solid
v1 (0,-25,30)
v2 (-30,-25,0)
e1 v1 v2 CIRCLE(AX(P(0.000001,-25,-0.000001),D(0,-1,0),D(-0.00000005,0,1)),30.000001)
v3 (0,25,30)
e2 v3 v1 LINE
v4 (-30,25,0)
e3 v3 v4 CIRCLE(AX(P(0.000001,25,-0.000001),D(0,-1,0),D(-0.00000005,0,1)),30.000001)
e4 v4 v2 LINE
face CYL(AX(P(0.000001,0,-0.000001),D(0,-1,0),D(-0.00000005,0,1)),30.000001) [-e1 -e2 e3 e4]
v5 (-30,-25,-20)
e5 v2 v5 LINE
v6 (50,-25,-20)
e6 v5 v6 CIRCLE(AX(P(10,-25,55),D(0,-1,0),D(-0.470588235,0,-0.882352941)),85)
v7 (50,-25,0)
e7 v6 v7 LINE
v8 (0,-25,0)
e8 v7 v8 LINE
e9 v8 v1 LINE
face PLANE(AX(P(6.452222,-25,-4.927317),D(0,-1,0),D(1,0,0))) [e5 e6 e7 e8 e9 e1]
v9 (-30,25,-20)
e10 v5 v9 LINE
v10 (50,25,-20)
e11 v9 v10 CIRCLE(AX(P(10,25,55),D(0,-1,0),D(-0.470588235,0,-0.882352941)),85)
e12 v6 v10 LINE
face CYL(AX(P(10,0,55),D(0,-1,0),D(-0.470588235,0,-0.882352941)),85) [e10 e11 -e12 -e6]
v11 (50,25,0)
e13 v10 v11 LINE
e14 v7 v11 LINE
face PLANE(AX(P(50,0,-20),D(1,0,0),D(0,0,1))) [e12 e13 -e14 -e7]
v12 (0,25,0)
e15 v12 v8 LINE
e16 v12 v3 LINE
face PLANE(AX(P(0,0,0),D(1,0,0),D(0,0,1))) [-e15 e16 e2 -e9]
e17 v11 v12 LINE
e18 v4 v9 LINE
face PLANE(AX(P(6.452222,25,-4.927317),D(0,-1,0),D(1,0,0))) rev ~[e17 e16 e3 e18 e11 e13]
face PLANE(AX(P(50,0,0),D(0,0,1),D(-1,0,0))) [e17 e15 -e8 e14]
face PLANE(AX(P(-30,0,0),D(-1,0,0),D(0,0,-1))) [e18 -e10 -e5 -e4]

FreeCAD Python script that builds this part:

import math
import FreeCAD as App
import Part
import Sketcher

doc = App.newDocument("Part")
body = doc.addObject("PartDesign::Body", "Body")

# Sketch on XZ plane
sketch1 = body.newObject("Sketcher::SketchObject", "Sketch")
sketch1.AttachmentSupport = (doc.getObject("XZ_Plane"), [""])
sketch1.MapMode = "FlatFace"
sketch1.addGeometry(Part.LineSegment(App.Vector(50, 0, 0), App.Vector(0, 0, 0)), False)
sketch1.addGeometry(Part.LineSegment(App.Vector(0, 0, 0), App.Vector(0, 30, 0)), False)
sketch1.addGeometry(Part.ArcOfCircle(Part.Circle(App.Vector(0, 0, 0), App.Vector(0, 0, 1), 30), math.radians(90), math.radians(180)), False)
sketch1.addGeometry(Part.LineSegment(App.Vector(-30, 0, 0), App.Vector(-30, -20, 0)), False)
sketch1.addGeometry(Part.ArcOfCircle(Part.Circle(App.Vector(10, 55, 0), App.Vector(0, 0, 1), 85), math.radians(-118), math.radians(-62)), False)
sketch1.addGeometry(Part.LineSegment(App.Vector(50, -20, 0), App.Vector(50, 0, 0)), False)
sketch1.addConstraint(Sketcher.Constraint("Coincident", 0, 2, 1, 1))
sketch1.addConstraint(Sketcher.Constraint("Coincident", 1, 2, 2, 1))
sketch1.addConstraint(Sketcher.Constraint("Tangent", 2, 2, 3, 1))
sketch1.addConstraint(Sketcher.Constraint("Coincident", 3, 2, 4, 1))
sketch1.addConstraint(Sketcher.Constraint("Coincident", 4, 2, 5, 1))
sketch1.addConstraint(Sketcher.Constraint("Coincident", 5, 2, 0, 1))
sketch1.addConstraint(Sketcher.Constraint("Horizontal", 0))
sketch1.addConstraint(Sketcher.Constraint("Vertical", 1))
sketch1.addConstraint(Sketcher.Constraint("Vertical", 3))
sketch1.addConstraint(Sketcher.Constraint("Vertical", 5))
sketch1.addConstraint(Sketcher.Constraint("Coincident", 2, 3, -1, 1))
sketch1.addConstraint(Sketcher.Constraint("Coincident", 0, 2, -1, 1))
sketch1.addConstraint(Sketcher.Constraint("Horizontal", 3, 2, 4, 2))
sketch1.addConstraint(Sketcher.Constraint("Radius", 2, 30.000001))
sketch1.addConstraint(Sketcher.Constraint("Radius", 4, 85.0))
sketch1.addConstraint(Sketcher.Constraint("DistanceX", 0, 2, 0, 1, 50.0))
sketch1.addConstraint(Sketcher.Constraint("DistanceY", 3, 2, 3, 1, 20.0))
pad1 = body.newObject("PartDesign::Pad", "Pad")
pad1.Profile = sketch1
pad1.Length = 50
pad1.Midplane = True

doc.recompute()
